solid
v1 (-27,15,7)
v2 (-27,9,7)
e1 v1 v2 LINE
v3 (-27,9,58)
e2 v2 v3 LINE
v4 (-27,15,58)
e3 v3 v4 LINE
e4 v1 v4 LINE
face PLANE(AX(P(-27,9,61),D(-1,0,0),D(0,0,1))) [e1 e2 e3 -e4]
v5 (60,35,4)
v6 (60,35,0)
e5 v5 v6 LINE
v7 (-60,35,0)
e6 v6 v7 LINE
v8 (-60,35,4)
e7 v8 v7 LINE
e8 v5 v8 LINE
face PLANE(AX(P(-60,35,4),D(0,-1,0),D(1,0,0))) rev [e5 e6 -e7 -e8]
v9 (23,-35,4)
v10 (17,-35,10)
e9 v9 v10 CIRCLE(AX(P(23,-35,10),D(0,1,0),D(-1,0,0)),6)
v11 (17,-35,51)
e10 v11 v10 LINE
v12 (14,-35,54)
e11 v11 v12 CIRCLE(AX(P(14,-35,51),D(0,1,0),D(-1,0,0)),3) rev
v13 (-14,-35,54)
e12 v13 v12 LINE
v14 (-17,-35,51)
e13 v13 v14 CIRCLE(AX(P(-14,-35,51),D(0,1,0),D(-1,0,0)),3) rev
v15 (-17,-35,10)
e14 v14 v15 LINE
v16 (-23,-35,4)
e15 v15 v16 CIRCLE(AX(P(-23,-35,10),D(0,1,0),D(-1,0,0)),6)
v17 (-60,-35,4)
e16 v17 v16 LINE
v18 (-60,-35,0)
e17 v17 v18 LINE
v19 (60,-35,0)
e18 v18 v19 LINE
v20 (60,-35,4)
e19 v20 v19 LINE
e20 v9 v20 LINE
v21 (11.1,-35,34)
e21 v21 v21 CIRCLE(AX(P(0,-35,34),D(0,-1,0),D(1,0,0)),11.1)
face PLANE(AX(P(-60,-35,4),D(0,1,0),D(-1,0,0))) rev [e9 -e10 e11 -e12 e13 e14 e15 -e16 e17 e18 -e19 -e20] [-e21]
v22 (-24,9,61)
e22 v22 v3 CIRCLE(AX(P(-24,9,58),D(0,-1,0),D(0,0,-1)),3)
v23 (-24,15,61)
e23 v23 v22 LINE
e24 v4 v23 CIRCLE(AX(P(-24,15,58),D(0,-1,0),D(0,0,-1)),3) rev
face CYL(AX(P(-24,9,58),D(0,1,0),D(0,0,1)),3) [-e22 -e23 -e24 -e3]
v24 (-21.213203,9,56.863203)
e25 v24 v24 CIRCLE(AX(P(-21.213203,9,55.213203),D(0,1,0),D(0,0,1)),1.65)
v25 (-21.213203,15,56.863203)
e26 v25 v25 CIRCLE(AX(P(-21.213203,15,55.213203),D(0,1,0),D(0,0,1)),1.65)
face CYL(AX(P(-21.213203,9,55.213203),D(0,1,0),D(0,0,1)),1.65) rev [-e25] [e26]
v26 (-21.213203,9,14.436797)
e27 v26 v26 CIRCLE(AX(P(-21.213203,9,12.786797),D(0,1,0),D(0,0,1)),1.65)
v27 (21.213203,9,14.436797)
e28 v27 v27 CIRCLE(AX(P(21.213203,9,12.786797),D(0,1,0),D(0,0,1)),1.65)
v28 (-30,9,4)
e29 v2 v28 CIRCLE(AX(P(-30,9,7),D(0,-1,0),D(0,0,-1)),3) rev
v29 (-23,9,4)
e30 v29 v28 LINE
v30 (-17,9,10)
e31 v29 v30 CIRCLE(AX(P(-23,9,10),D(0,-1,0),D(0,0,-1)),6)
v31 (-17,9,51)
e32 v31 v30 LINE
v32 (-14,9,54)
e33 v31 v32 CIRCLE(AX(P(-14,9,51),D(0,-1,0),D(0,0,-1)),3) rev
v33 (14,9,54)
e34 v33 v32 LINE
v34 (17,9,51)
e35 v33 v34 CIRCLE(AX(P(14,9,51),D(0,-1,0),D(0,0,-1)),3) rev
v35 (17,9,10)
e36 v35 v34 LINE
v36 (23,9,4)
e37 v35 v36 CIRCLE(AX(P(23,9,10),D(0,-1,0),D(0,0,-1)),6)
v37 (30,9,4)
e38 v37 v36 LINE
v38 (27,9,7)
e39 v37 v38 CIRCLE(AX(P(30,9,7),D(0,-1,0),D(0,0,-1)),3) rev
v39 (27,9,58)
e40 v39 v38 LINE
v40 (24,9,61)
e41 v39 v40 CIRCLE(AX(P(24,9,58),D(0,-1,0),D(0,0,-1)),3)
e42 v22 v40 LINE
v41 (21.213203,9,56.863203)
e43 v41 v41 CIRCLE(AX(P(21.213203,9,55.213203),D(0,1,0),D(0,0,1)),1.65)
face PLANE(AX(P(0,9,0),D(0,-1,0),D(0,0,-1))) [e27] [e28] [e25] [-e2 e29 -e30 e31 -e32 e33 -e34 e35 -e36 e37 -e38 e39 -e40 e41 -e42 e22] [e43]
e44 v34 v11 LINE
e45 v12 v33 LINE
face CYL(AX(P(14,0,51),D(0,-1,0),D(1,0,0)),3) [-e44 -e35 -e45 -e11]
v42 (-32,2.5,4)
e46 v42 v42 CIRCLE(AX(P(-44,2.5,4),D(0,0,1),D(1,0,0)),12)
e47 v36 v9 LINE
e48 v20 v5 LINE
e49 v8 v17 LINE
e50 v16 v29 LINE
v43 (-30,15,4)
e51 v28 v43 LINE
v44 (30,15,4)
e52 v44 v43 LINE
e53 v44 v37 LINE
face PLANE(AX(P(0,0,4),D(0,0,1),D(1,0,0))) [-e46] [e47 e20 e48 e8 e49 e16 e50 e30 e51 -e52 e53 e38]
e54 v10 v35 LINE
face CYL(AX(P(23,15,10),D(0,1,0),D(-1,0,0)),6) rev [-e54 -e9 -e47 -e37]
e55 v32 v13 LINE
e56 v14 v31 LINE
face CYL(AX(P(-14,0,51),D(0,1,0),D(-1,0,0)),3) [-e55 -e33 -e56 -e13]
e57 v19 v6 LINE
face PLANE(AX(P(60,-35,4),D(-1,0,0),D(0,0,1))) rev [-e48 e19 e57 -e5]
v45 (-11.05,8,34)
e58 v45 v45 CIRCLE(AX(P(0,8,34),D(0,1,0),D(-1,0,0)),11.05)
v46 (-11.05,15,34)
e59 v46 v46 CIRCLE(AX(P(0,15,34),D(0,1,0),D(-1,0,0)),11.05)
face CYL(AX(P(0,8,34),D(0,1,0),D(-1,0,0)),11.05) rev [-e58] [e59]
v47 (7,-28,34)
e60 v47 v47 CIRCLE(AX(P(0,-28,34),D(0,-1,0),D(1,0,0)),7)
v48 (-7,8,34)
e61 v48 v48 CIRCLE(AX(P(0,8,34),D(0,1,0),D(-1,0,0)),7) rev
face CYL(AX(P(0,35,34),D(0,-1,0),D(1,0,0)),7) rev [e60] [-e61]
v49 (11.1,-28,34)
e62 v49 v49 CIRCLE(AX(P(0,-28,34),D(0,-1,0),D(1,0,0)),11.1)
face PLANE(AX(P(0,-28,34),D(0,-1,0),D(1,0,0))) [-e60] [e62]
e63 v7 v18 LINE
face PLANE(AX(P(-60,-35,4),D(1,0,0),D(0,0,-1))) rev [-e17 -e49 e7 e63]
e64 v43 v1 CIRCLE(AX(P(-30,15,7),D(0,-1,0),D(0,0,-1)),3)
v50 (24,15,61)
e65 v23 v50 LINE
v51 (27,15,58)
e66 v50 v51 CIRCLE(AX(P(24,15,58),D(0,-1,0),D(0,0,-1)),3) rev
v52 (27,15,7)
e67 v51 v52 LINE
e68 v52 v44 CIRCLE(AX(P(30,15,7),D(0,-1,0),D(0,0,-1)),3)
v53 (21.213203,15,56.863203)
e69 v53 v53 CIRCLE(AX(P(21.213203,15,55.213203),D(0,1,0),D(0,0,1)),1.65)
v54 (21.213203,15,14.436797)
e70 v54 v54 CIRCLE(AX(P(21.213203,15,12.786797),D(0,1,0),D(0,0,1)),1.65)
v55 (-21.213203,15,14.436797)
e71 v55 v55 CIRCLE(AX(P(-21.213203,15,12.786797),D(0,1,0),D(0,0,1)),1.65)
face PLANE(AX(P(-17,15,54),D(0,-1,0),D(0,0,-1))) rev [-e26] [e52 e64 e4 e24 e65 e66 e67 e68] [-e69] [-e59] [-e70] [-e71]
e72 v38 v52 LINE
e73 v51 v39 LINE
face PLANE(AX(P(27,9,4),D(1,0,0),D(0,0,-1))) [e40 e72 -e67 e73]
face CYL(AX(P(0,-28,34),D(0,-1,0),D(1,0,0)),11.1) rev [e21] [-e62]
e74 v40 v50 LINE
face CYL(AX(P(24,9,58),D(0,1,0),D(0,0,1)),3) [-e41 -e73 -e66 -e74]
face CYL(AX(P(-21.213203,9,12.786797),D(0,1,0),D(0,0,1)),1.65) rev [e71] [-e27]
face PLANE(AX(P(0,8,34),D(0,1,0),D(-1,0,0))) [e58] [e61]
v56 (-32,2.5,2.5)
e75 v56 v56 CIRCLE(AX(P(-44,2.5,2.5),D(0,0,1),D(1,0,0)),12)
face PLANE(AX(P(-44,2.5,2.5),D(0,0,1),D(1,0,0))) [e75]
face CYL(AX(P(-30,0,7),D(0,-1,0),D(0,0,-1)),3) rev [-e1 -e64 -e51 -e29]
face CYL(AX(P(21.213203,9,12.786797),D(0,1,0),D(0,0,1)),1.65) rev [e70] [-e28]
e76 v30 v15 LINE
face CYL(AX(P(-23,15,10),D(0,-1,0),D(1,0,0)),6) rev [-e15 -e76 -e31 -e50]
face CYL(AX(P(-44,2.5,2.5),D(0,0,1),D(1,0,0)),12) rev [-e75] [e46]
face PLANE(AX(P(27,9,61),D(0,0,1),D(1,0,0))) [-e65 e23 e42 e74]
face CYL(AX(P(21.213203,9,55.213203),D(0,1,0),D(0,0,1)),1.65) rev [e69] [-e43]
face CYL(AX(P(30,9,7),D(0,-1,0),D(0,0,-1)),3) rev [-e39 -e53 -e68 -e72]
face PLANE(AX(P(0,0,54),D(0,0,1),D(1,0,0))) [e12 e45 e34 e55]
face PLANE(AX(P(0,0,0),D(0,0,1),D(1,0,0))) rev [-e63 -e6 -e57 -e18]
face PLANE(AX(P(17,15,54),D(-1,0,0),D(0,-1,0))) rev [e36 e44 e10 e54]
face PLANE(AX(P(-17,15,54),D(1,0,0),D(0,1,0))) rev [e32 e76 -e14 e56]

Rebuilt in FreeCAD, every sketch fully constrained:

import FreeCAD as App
import Part
import Sketcher
from FreeCAD import Vector


def edges_at(feature, points):
    """Names of the edges that pass closest to the given points."""
    edges = feature.Shape.Edges
    near = lambda p: min(range(len(edges)), key=lambda i: edges[i].distToShape(Part.Vertex(*p))[0])
    return sorted({f"Edge{near(p) + 1}" for p in points})


def add_polygon(sketch, points):
    """Adds a closed chain of lines whose ends are joined by coincident constraints."""
    first, n = sketch.GeometryCount, len(points)
    for a, b in zip(points, points[1:] + points[:1]):
        sketch.addGeometry(Part.LineSegment(App.Vector(*a, 0), App.Vector(*b, 0)), False)
    for i in range(n):
        sketch.addConstraint(Sketcher.Constraint("Coincident", first + i, 2, first + (i + 1) % n, 1))

doc = App.newDocument("Part")
body = doc.addObject("PartDesign::Body", "Body")

sketch1 = body.newObject("Sketcher::SketchObject", "Sketch")
sketch1.AttachmentSupport = (doc.getObject("XY_Plane"), [""])
sketch1.MapMode = "FlatFace"
add_polygon(sketch1, [(-60, -35), (60, -35), (60, 35), (-60, 35)])
sketch1.addConstraint([
    Sketcher.Constraint("Horizontal", 0),
    Sketcher.Constraint("Vertical", 1),
    Sketcher.Constraint("Horizontal", 2),
    Sketcher.Constraint("Vertical", 3),
    Sketcher.Constraint("Symmetric", 0, 2, 2, 2, -1, 1),
    Sketcher.Constraint("DistanceX", 0, 1, 0, 2, 120.0),
    Sketcher.Constraint("DistanceY", 1, 1, 1, 2, 70.0),
])
pad1 = body.newObject("PartDesign::Pad", "Pad")
pad1.Profile = sketch1
pad1.Length = 4

sketch2 = body.newObject("Sketcher::SketchObject", "Sketch001")
sketch2.AttachmentSupport = (doc.getObject("XY_Plane"), [""])
sketch2.MapMode = "FlatFace"
sketch2.AttachmentOffset = App.Placement(Vector(0, 0, 4), App.Rotation())
add_polygon(sketch2, [(-17, 15), (-17, -35), (17, -35), (17, 15)])
sketch2.addConstraint([
    Sketcher.Constraint("Vertical", 0),
    Sketcher.Constraint("Horizontal", 1),
    Sketcher.Constraint("Vertical", 2),
    Sketcher.Constraint("Horizontal", 3),
    Sketcher.Constraint("DistanceX", 1, 1, 1, 2, 34.0),
    Sketcher.Constraint("DistanceY", 0, 2, 0, 1, 50.0),
    Sketcher.Constraint("DistanceX", 0, 2, -1, 1, 17.0),
    Sketcher.Constraint("DistanceY", 0, 2, -1, 1, 35.0),
])
pad2 = body.newObject("PartDesign::Pad", "Pad001")
pad2.Profile = sketch2
pad2.Length = 50

sketch3 = body.newObject("Sketcher::SketchObject", "Sketch002")
sketch3.AttachmentSupport = (doc.getObject("XZ_Plane"), [""])
sketch3.MapMode = "FlatFace"
sketch3.AttachmentOffset = App.Placement(Vector(0, 0, 35), App.Rotation())
sketch3.addGeometry(Part.Circle(Vector(0, 34, 0), Vector(0, 0, 1), 11), False)
sketch3.addConstraint([
    Sketcher.Constraint("PointOnObject", 0, 3, -2),
    Sketcher.Constraint("Diameter", 0, 22.2),
    Sketcher.Constraint("DistanceY", -1, 1, 0, 3, 34.0),
])
pocket1 = body.newObject("PartDesign::Pocket", "Pocket")
pocket1.Profile = sketch3
pocket1.Length = 7

sketch4 = body.newObject("Sketcher::SketchObject", "Sketch003")
sketch4.AttachmentSupport = (doc.getObject("XZ_Plane"), [""])
sketch4.MapMode = "FlatFace"
sketch4.AttachmentOffset = App.Placement(Vector(0, 0, 28), App.Rotation())
sketch4.addGeometry(Part.Circle(Vector(0, 34, 0), Vector(0, 0, 1), 7), False)
sketch4.addConstraint([
    Sketcher.Constraint("PointOnObject", 0, 3, -2),
    Sketcher.Constraint("Diameter", 0, 14.0),
    Sketcher.Constraint("DistanceY", -1, 1, 0, 3, 34.0),
])
pocket2 = body.newObject("PartDesign::Pocket", "Pocket001")
pocket2.Profile = sketch4
pocket2.Type = "ThroughAll"

sketch5 = body.newObject("Sketcher::SketchObject", "Sketch004")
sketch5.AttachmentSupport = (doc.getObject("XZ_Plane"), [""])
sketch5.MapMode = "FlatFace"
sketch5.AttachmentOffset = App.Placement(Vector(0, 0, -15), App.Rotation())
sketch5.addGeometry(Part.Circle(Vector(0, 34, 0), Vector(0, 0, 1), 11), False)
sketch5.addConstraint([
    Sketcher.Constraint("PointOnObject", 0, 3, -2),
    Sketcher.Constraint("Diameter", 0, 22.1),
    Sketcher.Constraint("DistanceY", -1, 1, 0, 3, 34.0),
])
pocket3 = body.newObject("PartDesign::Pocket", "Pocket002")
pocket3.Profile = sketch5
pocket3.Length = 7
pocket3.Reversed = True

sketch6 = body.newObject("Sketcher::SketchObject", "Sketch005")
sketch6.AttachmentSupport = (doc.getObject("XY_Plane"), [""])
sketch6.MapMode = "FlatFace"
sketch6.AttachmentOffset = App.Placement(Vector(0, 0, 4), App.Rotation())
sketch6.addGeometry(Part.Circle(Vector(-44, 2, 0), Vector(0, 0, 1), 12), False)
sketch6.addConstraint([
    Sketcher.Constraint("Diameter", 0, 24.0),
    Sketcher.Constraint("DistanceX", 0, 3, -1, 1, 44.0),
    Sketcher.Constraint("DistanceY", -1, 1, 0, 3, 2.5),
])
pocket4 = body.newObject("PartDesign::Pocket", "Pocket003")
pocket4.Profile = sketch6
pocket4.Length = 1.5

sketch7 = body.newObject("Sketcher::SketchObject", "Sketch006")
sketch7.AttachmentSupport = (doc.getObject("XZ_Plane"), [""])
sketch7.MapMode = "FlatFace"
sketch7.AttachmentOffset = App.Placement(Vector(0, 0, -15), App.Rotation())
add_polygon(sketch7, [(27, 4), (17, 4), (17, 54), (-17, 54), (-17, 4), (-27, 4), (-27, 61), (27, 61)])
sketch7.addGeometry(Part.Circle(Vector(-21.2, 12.8, 0), Vector(0, 0, 1), 1.6), False)
sketch7.addGeometry(Part.Circle(Vector(21.2, 12.8, 0), Vector(0, 0, 1), 1.6), False)
sketch7.addGeometry(Part.Circle(Vector(-21.2, 55.2, 0), Vector(0, 0, 1), 1.6), False)
sketch7.addGeometry(Part.Circle(Vector(21.2, 55.2, 0), Vector(0, 0, 1), 1.6), False)
sketch7.addConstraint([
    Sketcher.Constraint("Horizontal", 0),
    Sketcher.Constraint("Vertical", 1),
    Sketcher.Constraint("Horizontal", 2),
    Sketcher.Constraint("Vertical", 3),
    Sketcher.Constraint("Horizontal", 4),
    Sketcher.Constraint("Vertical", 5),
    Sketcher.Constraint("Horizontal", 6),
    Sketcher.Constraint("Vertical", 7),
    Sketcher.Constraint("Equal", 8, 9),
    Sketcher.Constraint("Equal", 9, 10),
    Sketcher.Constraint("Equal", 10, 11),
    Sketcher.Constraint("Symmetric", 8, 3, 9, 3, -2),
    Sketcher.Constraint("Symmetric", 10, 3, 11, 3, -2),
    Sketcher.Constraint("Symmetric", 0, 2, 3, 2, -2),
    Sketcher.Constraint("Vertical", 8, 3, 10, 3),
    Sketcher.Constraint("Equal", 0, 4),
    Sketcher.Constraint("Diameter", 8, 3.3),
    Sketcher.Constraint("DistanceX", 0, 2, 0, 1, 10.0),
    Sketcher.Constraint("DistanceX", 2, 2, 2, 1, 34.0),
    Sketcher.Constraint("DistanceY", 1, 1, 1, 2, 50.0),
    Sketcher.Constraint("DistanceY", 5, 1, 5, 2, 57.0),
    Sketcher.Constraint("DistanceY", -1, 1, 0, 2, 4.0),
    Sketcher.Constraint("DistanceX", 8, 3, -1, 1, 21.213203),
    Sketcher.Constraint("DistanceY", -1, 1, 8, 3, 12.786797),
    Sketcher.Constraint("DistanceY", -1, 1, 10, 3, 55.213203),
])
pad3 = body.newObject("PartDesign::Pad", "Pad002")
pad3.Profile = sketch7
pad3.Length = 6
doc.recompute()

fillet = body.newObject("PartDesign::Fillet", "Fillet")
fillet.Base = (pad3, edges_at(pad3, [
    (17, -13, 54),
    (-17, -13, 54),
    (27, 12, 4),
    (27, 12, 61),
    (-27, 12, 61),
    (-27, 12, 4),
]))
fillet.Radius = 3
doc.recompute()

fillet2 = body.newObject("PartDesign::Fillet", "Fillet001")
fillet2.Base = (fillet, edges_at(fillet, [(17, -13, 4), (-17, -13, 4)]))
fillet2.Radius = 6

doc.recompute()
